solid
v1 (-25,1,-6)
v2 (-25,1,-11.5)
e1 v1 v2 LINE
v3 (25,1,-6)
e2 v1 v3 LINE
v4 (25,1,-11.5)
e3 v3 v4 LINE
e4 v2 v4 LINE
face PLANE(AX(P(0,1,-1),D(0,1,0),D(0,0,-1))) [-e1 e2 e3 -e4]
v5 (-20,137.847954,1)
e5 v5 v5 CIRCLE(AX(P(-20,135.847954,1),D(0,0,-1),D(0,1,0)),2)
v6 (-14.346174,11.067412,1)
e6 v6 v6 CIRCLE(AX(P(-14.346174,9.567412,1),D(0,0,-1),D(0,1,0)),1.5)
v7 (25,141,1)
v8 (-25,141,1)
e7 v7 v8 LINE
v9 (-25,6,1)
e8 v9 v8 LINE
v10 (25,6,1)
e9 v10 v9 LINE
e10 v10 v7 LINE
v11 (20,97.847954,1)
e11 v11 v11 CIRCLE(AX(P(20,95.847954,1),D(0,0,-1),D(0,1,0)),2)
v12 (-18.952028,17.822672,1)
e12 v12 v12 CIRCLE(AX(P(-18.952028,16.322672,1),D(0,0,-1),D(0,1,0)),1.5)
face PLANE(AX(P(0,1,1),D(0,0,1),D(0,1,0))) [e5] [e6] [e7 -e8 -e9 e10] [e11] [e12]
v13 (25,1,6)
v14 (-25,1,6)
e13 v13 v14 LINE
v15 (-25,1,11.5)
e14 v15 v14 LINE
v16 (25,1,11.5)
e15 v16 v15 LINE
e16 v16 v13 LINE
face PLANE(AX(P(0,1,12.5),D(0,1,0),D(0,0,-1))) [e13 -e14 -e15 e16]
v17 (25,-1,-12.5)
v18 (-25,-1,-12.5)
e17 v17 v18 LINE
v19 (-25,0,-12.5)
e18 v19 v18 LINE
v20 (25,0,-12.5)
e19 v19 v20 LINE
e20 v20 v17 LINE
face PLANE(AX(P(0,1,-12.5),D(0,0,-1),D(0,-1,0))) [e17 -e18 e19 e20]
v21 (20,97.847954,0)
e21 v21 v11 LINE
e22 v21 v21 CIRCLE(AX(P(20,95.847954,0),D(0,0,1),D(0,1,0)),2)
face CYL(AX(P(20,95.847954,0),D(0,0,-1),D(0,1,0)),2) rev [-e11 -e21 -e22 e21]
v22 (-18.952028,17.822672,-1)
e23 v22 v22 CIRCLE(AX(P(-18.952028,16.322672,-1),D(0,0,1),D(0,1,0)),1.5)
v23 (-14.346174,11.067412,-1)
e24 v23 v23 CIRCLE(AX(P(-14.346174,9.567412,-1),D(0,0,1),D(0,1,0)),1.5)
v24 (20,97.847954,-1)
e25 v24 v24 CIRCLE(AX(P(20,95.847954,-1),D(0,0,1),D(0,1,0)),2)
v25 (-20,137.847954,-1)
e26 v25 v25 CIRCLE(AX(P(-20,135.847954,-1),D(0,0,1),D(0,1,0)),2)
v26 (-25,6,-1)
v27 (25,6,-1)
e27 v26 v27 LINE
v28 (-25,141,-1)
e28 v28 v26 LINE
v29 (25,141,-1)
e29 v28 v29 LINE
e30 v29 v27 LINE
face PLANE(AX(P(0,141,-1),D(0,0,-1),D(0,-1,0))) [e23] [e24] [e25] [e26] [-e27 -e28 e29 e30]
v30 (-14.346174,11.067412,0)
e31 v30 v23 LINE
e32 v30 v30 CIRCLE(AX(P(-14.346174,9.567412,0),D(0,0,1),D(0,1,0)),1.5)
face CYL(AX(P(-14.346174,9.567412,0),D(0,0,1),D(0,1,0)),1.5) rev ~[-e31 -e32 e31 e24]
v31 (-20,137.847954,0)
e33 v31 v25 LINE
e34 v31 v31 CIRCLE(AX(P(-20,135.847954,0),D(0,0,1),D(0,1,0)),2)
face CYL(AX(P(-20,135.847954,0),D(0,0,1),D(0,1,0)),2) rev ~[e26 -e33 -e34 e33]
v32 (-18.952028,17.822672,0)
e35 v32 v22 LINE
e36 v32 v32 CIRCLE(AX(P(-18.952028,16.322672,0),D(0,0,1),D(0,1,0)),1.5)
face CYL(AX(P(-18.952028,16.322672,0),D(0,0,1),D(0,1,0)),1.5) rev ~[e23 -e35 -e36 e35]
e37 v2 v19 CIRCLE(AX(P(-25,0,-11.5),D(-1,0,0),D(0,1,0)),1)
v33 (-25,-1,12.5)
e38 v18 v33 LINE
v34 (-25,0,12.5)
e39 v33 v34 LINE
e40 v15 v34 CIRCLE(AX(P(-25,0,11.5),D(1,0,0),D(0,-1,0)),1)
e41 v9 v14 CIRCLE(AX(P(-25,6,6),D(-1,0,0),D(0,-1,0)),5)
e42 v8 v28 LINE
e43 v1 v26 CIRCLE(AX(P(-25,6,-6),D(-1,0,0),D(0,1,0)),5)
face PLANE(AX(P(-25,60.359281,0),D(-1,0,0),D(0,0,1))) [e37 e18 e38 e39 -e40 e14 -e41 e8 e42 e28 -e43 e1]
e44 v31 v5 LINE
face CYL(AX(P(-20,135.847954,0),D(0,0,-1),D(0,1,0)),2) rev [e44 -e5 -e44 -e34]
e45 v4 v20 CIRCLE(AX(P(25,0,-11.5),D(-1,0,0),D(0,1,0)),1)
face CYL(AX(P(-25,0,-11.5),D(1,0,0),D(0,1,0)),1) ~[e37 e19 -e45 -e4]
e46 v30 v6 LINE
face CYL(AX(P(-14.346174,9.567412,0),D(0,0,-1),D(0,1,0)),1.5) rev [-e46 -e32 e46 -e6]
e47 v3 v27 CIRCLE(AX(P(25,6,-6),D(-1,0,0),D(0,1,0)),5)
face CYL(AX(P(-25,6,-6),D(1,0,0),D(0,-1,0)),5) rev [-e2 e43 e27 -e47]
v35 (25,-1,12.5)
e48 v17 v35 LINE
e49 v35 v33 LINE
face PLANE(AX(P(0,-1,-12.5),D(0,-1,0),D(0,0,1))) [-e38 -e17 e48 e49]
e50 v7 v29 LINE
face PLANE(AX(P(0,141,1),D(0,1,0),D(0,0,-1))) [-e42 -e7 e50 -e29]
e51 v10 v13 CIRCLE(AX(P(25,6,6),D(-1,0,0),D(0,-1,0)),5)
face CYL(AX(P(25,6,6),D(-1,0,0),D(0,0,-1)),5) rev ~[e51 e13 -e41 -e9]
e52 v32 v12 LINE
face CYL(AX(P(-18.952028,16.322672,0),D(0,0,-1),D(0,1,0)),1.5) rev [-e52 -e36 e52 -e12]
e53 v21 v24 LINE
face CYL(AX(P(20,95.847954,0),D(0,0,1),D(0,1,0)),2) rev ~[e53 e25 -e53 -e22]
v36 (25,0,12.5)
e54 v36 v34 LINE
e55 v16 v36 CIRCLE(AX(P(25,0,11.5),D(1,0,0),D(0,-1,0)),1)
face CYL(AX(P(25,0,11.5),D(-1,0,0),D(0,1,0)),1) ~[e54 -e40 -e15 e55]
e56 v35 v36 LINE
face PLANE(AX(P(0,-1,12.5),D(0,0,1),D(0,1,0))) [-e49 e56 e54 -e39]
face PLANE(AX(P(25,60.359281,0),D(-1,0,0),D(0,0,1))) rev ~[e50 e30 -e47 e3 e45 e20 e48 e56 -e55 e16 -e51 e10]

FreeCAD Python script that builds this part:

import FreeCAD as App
import Part
import Sketcher
Q = App.Units.Quantity


def edges_at(feature, points):
    """Names of the edges that pass closest to the given points."""
    edges = feature.Shape.Edges
    near = lambda p: min(range(len(edges)), key=lambda i: edges[i].distToShape(Part.Vertex(*p))[0])
    return sorted({f"Edge{near(p) + 1}" for p in points})


def add_polygon(sketch, points):
    """Adds a closed chain of lines whose ends are joined by coincident constraints."""
    first, n = sketch.GeometryCount, len(points)
    for a, b in zip(points, points[1:] + points[:1]):
        sketch.addGeometry(Part.LineSegment(App.Vector(*a, 0), App.Vector(*b, 0)), False)
    for i in range(n):
        sketch.addConstraint(Sketcher.Constraint("Coincident", first + i, 2, first + (i + 1) % n, 1))

doc = App.newDocument("Part")
body = doc.addObject("PartDesign::Body", "Body")

# Sketch on XY plane
sketch1 = doc.addObject("Sketcher::SketchObject", "Sketch")
body.addObject(sketch1)
sketch1.AttachmentSupport = (doc.XY_Plane, [""])
sketch1.MapMode = "FlatFace"
add_polygon(sketch1, [(-12.5, 1), (-12.5, -1), (12.5, -1), (12.5, 1), (1, 1), (1, 141), (-1, 141), (-1, 1)])  # lines 0-7
sketch1.addConstraint([
    Sketcher.Constraint("Vertical", 0),
    Sketcher.Constraint("Horizontal", 1),
    Sketcher.Constraint("Vertical", 2),
    Sketcher.Constraint("Horizontal", 3),
    Sketcher.Constraint("Vertical", 4),
    Sketcher.Constraint("Horizontal", 5),
    Sketcher.Constraint("Vertical", 6),
    Sketcher.Constraint("Horizontal", 7),
    Sketcher.Constraint("Symmetric", 0, 2, 2, 2, -1, 1),
    Sketcher.Constraint("Symmetric", 3, 2, 6, 2, -2),
    Sketcher.Constraint("Equal", 5, 0),
    Sketcher.Constraint("DistanceX", 1, 1, 1, 2, Q("25 mm")),
    Sketcher.Constraint("DistanceX", 5, 2, 5, 1, Q("2 mm")),
    Sketcher.Constraint("DistanceY", 4, 1, 4, 2, Q("140 mm")),
])
pad1 = doc.addObject("PartDesign::Pad", "Pad")
body.addObject(pad1)
pad1.Profile = sketch1
pad1.Length = 50
pad1.Midplane = True
doc.recompute()

fillet = doc.addObject("PartDesign::Fillet", "Fillet")
body.addObject(fillet)
fillet.Base = (pad1, edges_at(pad1, [(-1, 1, 0), (1, 1, 0)]))
fillet.Radius = 5

# Sketch on YZ plane
sketch2 = doc.addObject("Sketcher::SketchObject", "Sketch001")
body.addObject(sketch2)
sketch2.AttachmentSupport = (doc.YZ_Plane, [""])
sketch2.MapMode = "FlatFace"
sketch2.addGeometry([
    Part.Circle(App.Vector(135.8, 20, 0), App.Vector(0, 0, 1), 2),
    Part.Circle(App.Vector(95.8, -20, 0), App.Vector(0, 0, 1), 2),
    Part.Circle(App.Vector(9.6, 14.3, 0), App.Vector(0, 0, 1), 1.5),
    Part.Circle(App.Vector(16.3, 19, 0), App.Vector(0, 0, 1), 1.5),
], False)
sketch2.addConstraint([
    Sketcher.Constraint("Equal", 0, 1),
    Sketcher.Constraint("Equal", 2, 3),
    Sketcher.Constraint("Diameter", 0, Q("4 mm")),
    Sketcher.Constraint("Diameter", 2, Q("3 mm")),
    Sketcher.Constraint("DistanceY", -1, 1, 0, 3, Q("20 mm")),
    Sketcher.Constraint("DistanceY", 1, 3, -1, 1, Q("20 mm")),
    Sketcher.Constraint("DistanceX", 1, 3, 0, 3, Q("40 mm")),
    Sketcher.Constraint("DistanceX", -1, 1, 2, 3, Q("9.567412 mm")),
    Sketcher.Constraint("DistanceX", 2, 3, 1, 3, Q("86.280542 mm")),
    Sketcher.Constraint("DistanceX", 2, 3, 3, 3, Q("6.75526 mm")),
    Sketcher.Constraint("DistanceY", -1, 1, 2, 3, Q("14.346174 mm")),
    Sketcher.Constraint("DistanceY", -1, 1, 3, 3, Q("18.952028 mm")),
])
pocket1 = doc.addObject("PartDesign::Pocket", "Pocket")
body.addObject(pocket1)
pocket1.Profile = sketch2
pocket1.Type = "ThroughAll"
pocket1.Midplane = True
doc.recompute()

fillet2 = doc.addObject("PartDesign::Fillet", "Fillet001")
body.addObject(fillet2)
fillet2.Base = (pocket1, edges_at(pocket1, [(-12.5, 1, 0), (12.5, 1, 0)]))
fillet2.Radius = 1
body2 = doc.addObject("PartDesign::Body", "Body001")
doc.recompute()

body.Placement = App.Placement(App.Vector(0, 0, 0), App.Rotation(App.Vector(0, 1, 0), 270))
boolean = doc.addObject("PartDesign::Boolean", "Boolean")
body2.addObject(boolean)
boolean.Type = "Fuse"
boolean.addObjects([body])

doc.recompute()
